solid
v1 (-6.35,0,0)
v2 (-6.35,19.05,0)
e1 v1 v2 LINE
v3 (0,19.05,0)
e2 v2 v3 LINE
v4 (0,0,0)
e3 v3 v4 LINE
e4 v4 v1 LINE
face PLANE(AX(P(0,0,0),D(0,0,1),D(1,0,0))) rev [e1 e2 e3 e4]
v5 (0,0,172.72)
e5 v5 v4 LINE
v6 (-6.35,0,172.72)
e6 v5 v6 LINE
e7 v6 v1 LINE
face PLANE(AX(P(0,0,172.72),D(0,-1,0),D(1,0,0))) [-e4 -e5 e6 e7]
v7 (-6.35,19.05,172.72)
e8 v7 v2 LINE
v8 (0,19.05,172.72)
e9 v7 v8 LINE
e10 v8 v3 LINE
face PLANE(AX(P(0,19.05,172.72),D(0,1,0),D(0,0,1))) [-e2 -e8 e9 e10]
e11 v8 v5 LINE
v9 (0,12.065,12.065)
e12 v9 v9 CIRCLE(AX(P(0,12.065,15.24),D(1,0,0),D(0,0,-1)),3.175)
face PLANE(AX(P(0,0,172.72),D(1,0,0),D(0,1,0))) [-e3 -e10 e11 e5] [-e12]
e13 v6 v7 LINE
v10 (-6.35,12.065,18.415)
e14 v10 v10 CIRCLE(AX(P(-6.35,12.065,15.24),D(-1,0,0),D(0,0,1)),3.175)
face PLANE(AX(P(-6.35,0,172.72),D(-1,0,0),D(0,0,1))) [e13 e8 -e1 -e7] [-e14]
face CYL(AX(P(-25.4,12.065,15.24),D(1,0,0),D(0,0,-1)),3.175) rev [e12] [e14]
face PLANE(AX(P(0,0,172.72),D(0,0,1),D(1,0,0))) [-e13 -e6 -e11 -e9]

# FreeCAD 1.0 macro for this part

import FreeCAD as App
import Part
import Sketcher

V = App.Vector
Q = App.Units.Quantity


def add_polygon(sketch, points):
    """Adds a closed chain of lines whose ends are joined by coincident constraints."""
    first, n = sketch.GeometryCount, len(points)
    for a, b in zip(points, points[1:] + points[:1]):
        sketch.addGeometry(Part.LineSegment(App.Vector(*a, 0), App.Vector(*b, 0)), False)
    for i in range(n):
        sketch.addConstraint(Sketcher.Constraint("Coincident", first + i, 2, first + (i + 1) % n, 1))

doc = App.newDocument("Part")
body = doc.addObject("PartDesign::Body", "Body")

# Sketch on XY plane
sketch1 = body.newObject("Sketcher::SketchObject", "Sketch")
sketch1.AttachmentSupport = (doc.getObject("XY_Plane"), [""])
sketch1.MapMode = "FlatFace"
add_polygon(sketch1, [(-6.35, 19.05), (-6.35, 0), (0, 0), (0, 19.05)])  # lines 0-3
sketch1.addConstraint(Sketcher.Constraint("Vertical", 0))
sketch1.addConstraint(Sketcher.Constraint("Horizontal", 1))
sketch1.addConstraint(Sketcher.Constraint("Vertical", 2))
sketch1.addConstraint(Sketcher.Constraint("Horizontal", 3))
sketch1.addConstraint(Sketcher.Constraint("Coincident", 1, 2, -1, 1))
sketch1.addConstraint(Sketcher.Constraint("DistanceX", 1, 1, 1, 2, Q("0.25 in")))
sketch1.addConstraint(Sketcher.Constraint("DistanceY", 0, 2, 0, 1, Q("0.75 in")))
pad1 = body.newObject("PartDesign::Pad", "Pad")
pad1.Profile = sketch1
pad1.Length = Q("6.8 in")

# Sketch on YZ plane
sketch2 = body.newObject("Sketcher::SketchObject", "Sketch001")
sketch2.AttachmentSupport = (doc.getObject("YZ_Plane"), [""])
sketch2.MapMode = "FlatFace"
sketch2.addGeometry(Part.Circle(V(12.065, 15.24, 0), V(0, 0, 1), 3.175), False)
sketch2.addConstraint(Sketcher.Constraint("Diameter", 0, Q("0.25 in")))
sketch2.addConstraint(Sketcher.Constraint("DistanceY", -1, 1, 0, 3, Q("0.6 in")))
sketch2.addConstraint(Sketcher.Constraint("DistanceX", -1, 1, 0, 3, Q("0.475 in")))
pocket1 = body.newObject("PartDesign::Pocket", "Pocket")
pocket1.Profile = sketch2
pocket1.Length = Q("1 in")

doc.recompute()
